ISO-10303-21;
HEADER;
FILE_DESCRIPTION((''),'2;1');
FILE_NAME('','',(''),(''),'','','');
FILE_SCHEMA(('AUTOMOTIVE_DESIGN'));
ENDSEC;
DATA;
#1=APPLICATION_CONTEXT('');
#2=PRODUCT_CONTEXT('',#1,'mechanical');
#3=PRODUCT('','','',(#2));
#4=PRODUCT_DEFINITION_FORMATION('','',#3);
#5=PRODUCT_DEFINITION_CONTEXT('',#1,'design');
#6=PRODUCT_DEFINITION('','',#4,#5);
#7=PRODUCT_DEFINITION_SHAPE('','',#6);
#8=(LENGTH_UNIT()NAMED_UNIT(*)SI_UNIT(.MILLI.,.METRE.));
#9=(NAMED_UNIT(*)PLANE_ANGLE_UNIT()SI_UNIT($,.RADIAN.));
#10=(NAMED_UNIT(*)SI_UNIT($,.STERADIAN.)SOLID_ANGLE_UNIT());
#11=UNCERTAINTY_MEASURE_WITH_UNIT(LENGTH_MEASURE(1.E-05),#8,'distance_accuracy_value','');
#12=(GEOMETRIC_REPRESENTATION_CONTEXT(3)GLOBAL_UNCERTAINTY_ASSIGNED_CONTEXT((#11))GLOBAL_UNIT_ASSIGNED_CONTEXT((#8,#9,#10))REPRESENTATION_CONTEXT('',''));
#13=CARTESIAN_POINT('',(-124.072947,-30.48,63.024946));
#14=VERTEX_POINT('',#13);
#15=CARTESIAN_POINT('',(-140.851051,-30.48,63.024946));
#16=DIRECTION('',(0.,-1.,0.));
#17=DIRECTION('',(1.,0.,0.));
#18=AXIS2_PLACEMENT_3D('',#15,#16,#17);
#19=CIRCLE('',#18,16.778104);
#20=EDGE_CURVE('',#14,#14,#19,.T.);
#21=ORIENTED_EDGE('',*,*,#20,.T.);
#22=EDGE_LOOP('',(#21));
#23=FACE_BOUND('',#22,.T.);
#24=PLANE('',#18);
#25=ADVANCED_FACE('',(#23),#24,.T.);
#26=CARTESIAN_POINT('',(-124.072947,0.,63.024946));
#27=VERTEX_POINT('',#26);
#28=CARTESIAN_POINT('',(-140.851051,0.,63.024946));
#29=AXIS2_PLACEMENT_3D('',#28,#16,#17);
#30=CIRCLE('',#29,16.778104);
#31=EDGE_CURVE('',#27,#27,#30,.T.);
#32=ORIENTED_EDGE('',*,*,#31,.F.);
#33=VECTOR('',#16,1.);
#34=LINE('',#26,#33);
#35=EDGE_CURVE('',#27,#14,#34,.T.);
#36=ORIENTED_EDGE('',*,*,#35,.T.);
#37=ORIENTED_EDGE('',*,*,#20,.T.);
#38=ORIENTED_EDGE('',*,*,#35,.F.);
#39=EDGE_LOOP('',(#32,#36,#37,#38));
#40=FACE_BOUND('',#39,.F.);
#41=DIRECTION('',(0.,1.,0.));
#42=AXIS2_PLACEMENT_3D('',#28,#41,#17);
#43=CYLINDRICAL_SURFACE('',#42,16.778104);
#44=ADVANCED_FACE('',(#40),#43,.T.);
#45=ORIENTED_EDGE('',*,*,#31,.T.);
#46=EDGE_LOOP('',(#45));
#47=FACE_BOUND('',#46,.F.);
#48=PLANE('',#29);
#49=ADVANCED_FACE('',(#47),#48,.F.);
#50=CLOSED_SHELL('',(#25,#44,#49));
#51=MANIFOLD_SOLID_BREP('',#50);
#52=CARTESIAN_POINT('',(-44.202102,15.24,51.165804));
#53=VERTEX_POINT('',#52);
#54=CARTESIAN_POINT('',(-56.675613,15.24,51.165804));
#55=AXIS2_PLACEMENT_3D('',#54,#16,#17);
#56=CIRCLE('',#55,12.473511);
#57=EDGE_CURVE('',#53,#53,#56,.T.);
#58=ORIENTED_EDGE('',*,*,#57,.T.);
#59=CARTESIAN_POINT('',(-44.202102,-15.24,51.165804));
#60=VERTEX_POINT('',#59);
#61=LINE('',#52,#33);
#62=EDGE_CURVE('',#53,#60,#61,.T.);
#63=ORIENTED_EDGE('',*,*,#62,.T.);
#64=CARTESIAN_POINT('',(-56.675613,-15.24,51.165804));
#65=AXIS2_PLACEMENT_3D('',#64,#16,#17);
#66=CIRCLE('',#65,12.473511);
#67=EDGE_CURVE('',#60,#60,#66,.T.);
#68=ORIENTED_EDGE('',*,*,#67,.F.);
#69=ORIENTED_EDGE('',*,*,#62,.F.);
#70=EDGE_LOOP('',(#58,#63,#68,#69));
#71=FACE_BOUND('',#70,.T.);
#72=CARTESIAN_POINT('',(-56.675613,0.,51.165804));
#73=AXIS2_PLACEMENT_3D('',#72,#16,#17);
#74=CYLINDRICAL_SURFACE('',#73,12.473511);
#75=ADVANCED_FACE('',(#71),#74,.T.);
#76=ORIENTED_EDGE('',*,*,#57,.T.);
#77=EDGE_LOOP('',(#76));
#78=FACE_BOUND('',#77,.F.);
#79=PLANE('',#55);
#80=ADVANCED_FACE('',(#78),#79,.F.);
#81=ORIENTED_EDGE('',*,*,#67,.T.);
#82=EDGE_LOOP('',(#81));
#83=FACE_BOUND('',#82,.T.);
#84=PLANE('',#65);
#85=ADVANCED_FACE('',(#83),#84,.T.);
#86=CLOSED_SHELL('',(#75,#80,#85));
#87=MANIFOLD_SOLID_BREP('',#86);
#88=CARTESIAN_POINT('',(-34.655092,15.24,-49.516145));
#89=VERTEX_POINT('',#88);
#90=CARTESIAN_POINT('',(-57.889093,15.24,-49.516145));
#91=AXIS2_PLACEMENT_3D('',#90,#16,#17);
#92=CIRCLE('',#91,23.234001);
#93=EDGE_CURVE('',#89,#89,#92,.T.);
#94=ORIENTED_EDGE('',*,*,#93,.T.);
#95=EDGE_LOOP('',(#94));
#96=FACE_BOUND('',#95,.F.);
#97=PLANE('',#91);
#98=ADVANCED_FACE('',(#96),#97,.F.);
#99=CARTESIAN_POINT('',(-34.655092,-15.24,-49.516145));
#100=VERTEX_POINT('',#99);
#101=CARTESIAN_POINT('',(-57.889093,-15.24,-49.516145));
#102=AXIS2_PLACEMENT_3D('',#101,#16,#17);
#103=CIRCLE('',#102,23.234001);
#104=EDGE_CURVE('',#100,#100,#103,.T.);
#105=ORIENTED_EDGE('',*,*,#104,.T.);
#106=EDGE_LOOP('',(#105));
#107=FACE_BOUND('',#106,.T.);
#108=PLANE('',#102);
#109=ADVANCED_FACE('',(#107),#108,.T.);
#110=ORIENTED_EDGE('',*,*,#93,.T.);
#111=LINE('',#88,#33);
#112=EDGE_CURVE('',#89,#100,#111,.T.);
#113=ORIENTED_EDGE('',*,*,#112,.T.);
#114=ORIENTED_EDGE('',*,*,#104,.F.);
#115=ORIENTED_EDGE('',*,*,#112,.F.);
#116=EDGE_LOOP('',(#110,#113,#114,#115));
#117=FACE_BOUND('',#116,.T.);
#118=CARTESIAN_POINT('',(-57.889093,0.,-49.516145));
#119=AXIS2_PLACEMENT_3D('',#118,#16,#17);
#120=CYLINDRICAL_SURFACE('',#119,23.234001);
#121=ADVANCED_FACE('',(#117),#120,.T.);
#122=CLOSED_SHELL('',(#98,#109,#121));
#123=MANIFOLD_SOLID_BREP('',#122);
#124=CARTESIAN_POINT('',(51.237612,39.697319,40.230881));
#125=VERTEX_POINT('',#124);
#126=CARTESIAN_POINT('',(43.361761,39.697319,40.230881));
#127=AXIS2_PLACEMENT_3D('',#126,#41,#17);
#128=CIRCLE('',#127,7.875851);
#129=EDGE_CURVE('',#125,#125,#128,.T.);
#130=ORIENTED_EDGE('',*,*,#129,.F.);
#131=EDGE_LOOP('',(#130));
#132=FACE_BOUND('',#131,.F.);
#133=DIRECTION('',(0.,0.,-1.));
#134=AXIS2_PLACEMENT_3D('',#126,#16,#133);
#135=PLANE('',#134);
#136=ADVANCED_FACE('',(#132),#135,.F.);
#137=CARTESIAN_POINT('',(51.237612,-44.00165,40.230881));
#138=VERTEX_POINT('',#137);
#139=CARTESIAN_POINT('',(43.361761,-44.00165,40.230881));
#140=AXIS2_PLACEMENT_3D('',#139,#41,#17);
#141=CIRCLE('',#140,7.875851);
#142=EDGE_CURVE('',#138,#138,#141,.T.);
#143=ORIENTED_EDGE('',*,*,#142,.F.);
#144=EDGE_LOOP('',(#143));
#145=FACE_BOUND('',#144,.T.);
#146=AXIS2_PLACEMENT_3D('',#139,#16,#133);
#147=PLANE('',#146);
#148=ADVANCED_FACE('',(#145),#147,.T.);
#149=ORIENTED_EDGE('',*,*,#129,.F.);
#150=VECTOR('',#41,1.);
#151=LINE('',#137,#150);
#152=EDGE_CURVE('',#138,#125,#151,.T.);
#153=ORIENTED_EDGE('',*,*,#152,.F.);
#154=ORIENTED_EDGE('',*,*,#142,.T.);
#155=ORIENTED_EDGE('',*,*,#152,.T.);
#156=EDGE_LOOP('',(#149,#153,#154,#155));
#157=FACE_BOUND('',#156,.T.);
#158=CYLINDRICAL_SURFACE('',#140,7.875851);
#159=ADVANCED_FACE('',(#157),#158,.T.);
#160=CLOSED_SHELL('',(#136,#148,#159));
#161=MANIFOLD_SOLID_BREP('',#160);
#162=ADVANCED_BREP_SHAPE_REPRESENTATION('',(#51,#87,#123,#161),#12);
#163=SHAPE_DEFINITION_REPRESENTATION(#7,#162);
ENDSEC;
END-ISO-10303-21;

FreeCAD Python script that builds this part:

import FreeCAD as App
import Part
import Sketcher
from FreeCAD import Vector
Q = App.Units.Quantity

doc = App.newDocument("Part")
body = doc.addObject("PartDesign::Body", "Body")

sketch1 = body.newObject("Sketcher::SketchObject", "Sketch")
sketch1.AttachmentSupport = (doc.getObject("XZ_Plane"), [""])
sketch1.MapMode = "FlatFace"
sketch1.addGeometry(Part.Circle(Vector(-57, 51, 0), Vector(0, 0, 1), 12), False)
sketch1.addConstraint([
    Sketcher.Constraint("Diameter", 0, 24.947022),
    Sketcher.Constraint("DistanceX", 0, 3, -1, 1, 56.675613),
    Sketcher.Constraint("DistanceY", -1, 1, 0, 3, 51.165804),
])
pad1 = body.newObject("PartDesign::Pad", "Pad")
pad1.Profile = sketch1
pad1.Length = Q("1.2 in")
pad1.Midplane = True
body2 = doc.addObject("PartDesign::Body", "Body001")

sketch2 = body2.newObject("Sketcher::SketchObject", "Sketch001")
sketch2.AttachmentSupport = (doc.getObject("XZ_Plane001"), [""])
sketch2.MapMode = "FlatFace"
sketch2.addGeometry(Part.Circle(Vector(43, 40, 0), Vector(0, 0, 1), 8), False)
sketch2.addConstraint([
    Sketcher.Constraint("Diameter", 0, 15.751702),
    Sketcher.Constraint("DistanceX", -1, 1, 0, 3, 43.361761),
    Sketcher.Constraint("DistanceY", -1, 1, 0, 3, 40.230881),
])

sketch3 = body2.newObject("Sketcher::SketchObject", "Sketch002")
sketch3.AttachmentSupport = (doc.getObject("XY_Plane001"), [""])
sketch3.MapMode = "FlatFace"
sketch3.addGeometry(Part.LineSegment(Vector(-15, -44, 0), Vector(-15, 40, 0)), False)
sketch3.addConstraint([
    Sketcher.Constraint("Vertical", 0),
    Sketcher.Constraint("DistanceY", 0, 1, 0, 2, 83.698969),
    Sketcher.Constraint("DistanceY", 0, 1, -1, 1, 44.00165),
    Sketcher.Constraint("DistanceX", 0, 1, -1, 1, 15.159276),
])
doc.recompute()

additivepipe = body2.newObject("PartDesign::AdditivePipe", "AdditivePipe")
additivepipe.Profile = sketch2
additivepipe.Spine = (sketch3, ["Edge1"])
body3 = doc.addObject("PartDesign::Body", "Body002")

sketch4 = body3.newObject("Sketcher::SketchObject", "Sketch003")
sketch4.AttachmentSupport = (doc.getObject("XZ_Plane002"), [""])
sketch4.MapMode = "FlatFace"
sketch4.addGeometry(Part.Circle(Vector(-141, 63, 0), Vector(0, 0, 1), 17), False)
sketch4.addConstraint([
    Sketcher.Constraint("Diameter", 0, 33.556208),
    Sketcher.Constraint("DistanceX", 0, 3, -1, 1, 140.851051),
    Sketcher.Constraint("DistanceY", -1, 1, 0, 3, 63.024946),
])
pad2 = body3.newObject("PartDesign::Pad", "Pad001")
pad2.Profile = sketch4
pad2.Length = Q("1.2 in")
body4 = doc.addObject("PartDesign::Body", "Body003")

sketch5 = body4.newObject("Sketcher::SketchObject", "Sketch004")
sketch5.AttachmentSupport = (doc.getObject("XZ_Plane003"), [""])
sketch5.MapMode = "FlatFace"
sketch5.addGeometry(Part.Circle(Vector(-58, -50, 0), Vector(0, 0, 1), 23), False)
sketch5.addConstraint([
    Sketcher.Constraint("Diameter", 0, 46.468002),
    Sketcher.Constraint("DistanceX", 0, 3, -1, 1, 57.889093),
    Sketcher.Constraint("DistanceY", 0, 3, -1, 1, 49.516145),
])
pad3 = body4.newObject("PartDesign::Pad", "Pad002")
pad3.Profile = sketch5
pad3.Length = Q("1.2 in")
pad3.Midplane = True

doc.recompute()
